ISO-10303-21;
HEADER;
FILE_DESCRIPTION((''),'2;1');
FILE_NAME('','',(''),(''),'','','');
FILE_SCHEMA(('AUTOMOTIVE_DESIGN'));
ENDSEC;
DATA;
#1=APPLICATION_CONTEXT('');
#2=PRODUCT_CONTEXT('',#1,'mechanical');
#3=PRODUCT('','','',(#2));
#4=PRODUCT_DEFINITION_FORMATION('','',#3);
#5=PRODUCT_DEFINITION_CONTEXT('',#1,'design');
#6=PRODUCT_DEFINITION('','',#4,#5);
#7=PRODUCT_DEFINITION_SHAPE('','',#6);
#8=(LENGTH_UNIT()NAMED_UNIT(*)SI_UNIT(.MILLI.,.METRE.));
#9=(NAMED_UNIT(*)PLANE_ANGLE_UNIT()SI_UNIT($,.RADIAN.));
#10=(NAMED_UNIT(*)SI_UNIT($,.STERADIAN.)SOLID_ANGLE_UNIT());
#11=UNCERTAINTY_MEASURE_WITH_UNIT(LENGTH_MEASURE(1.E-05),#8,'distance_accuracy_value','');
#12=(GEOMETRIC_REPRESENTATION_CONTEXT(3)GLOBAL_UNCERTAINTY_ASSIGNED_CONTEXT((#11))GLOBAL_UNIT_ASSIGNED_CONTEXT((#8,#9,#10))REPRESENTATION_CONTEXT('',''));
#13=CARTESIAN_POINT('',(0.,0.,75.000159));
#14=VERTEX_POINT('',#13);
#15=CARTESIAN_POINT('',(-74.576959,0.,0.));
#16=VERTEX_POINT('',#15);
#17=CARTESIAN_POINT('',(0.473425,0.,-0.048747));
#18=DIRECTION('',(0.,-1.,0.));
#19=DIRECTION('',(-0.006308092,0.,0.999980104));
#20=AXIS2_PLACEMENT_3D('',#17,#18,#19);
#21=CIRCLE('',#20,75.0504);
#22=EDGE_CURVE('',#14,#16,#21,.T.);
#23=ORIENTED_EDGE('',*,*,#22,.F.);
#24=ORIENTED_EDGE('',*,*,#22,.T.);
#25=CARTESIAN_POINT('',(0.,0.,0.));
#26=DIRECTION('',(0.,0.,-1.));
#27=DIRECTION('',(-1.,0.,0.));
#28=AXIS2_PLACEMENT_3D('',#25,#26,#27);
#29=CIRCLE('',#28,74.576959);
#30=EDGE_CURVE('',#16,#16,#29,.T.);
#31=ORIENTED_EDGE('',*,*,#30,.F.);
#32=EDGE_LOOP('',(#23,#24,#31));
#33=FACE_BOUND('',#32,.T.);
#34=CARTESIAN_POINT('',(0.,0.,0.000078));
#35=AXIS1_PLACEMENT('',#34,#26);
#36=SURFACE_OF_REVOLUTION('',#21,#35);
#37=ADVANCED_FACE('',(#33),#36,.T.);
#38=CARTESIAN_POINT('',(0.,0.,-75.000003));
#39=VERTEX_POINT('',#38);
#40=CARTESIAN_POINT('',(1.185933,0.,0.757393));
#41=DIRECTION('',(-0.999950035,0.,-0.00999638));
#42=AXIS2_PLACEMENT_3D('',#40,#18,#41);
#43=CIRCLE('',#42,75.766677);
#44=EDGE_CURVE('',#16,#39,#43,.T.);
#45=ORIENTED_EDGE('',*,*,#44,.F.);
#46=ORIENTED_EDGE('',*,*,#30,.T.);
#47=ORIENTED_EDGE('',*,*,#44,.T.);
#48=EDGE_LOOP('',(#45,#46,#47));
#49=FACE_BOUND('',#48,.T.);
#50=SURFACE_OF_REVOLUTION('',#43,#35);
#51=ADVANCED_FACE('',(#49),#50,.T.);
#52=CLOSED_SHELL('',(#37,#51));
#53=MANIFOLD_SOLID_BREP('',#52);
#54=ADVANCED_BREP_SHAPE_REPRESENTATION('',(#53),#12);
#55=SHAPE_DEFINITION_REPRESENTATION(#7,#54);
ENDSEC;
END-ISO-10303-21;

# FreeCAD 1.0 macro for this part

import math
import FreeCAD as App
import Part
import Sketcher

V = App.Vector
Q = App.Units.Quantity

doc = App.newDocument("Part")
params = doc.addObject("Spreadsheet::Sheet", "Params")
for row, (alias, value) in enumerate([
    ("revolution_angle", "360 deg"),
], start=1):
    params.set(f"A{row}", alias)
    params.set(f"B{row}", "=" + value)
    params.setAlias(f"B{row}", alias)

body = doc.addObject("PartDesign::Body", "Body")

# Sketch on XZ plane
sketch1 = doc.addObject("Sketcher::SketchObject", "Sketch")
body.addObject(sketch1)
sketch1.AttachmentSupport = (doc.XZ_Plane, [""])
sketch1.MapMode = "FlatFace"
sketch1.addGeometry(Part.LineSegment(V(0, -75, 0), V(0, 75, 0)), False)
sketch1.addGeometry(Part.ArcOfCircle(Part.Circle(V(0, 0, 0), V(0, 0, 1), 75), math.radians(90), math.radians(180)), False)
sketch1.addGeometry(Part.ArcOfCircle(Part.Circle(V(1, 1, 0), V(0, 0, 1), 76), math.radians(-179), math.radians(-91)), False)
sketch1.addConstraint(Sketcher.Constraint("Coincident", 0, 2, 1, 1))
sketch1.addConstraint(Sketcher.Constraint("Coincident", 1, 2, 2, 1))
sketch1.addConstraint(Sketcher.Constraint("Coincident", 2, 2, 0, 1))
sketch1.addConstraint(Sketcher.Constraint("Vertical", 0))
sketch1.addConstraint(Sketcher.Constraint("PointOnObject", 0, 2, -2))
sketch1.addConstraint(Sketcher.Constraint("PointOnObject", 1, 2, -1))
sketch1.addConstraint(Sketcher.Constraint("Radius", 1, Q("75.0504 mm")))
sketch1.addConstraint(Sketcher.Constraint("Radius", 2, Q("75.766677 mm")))
sketch1.addConstraint(Sketcher.Constraint("DistanceY", 0, 1, 0, 2, Q("150.000162 mm")))
sketch1.addConstraint(Sketcher.Constraint("DistanceY", -1, 1, 0, 2, Q("75.000159 mm")))
sketch1.addConstraint(Sketcher.Constraint("DistanceX", 1, 2, -1, 1, Q("74.576959 mm")))
revolution = doc.addObject("PartDesign::Revolution", "Revolution")
body.addObject(revolution)
revolution.Profile = sketch1
revolution.ReferenceAxis = (sketch1, ["V_Axis"])
revolution.setExpression("Angle", "Params.revolution_angle")

doc.recompute()
